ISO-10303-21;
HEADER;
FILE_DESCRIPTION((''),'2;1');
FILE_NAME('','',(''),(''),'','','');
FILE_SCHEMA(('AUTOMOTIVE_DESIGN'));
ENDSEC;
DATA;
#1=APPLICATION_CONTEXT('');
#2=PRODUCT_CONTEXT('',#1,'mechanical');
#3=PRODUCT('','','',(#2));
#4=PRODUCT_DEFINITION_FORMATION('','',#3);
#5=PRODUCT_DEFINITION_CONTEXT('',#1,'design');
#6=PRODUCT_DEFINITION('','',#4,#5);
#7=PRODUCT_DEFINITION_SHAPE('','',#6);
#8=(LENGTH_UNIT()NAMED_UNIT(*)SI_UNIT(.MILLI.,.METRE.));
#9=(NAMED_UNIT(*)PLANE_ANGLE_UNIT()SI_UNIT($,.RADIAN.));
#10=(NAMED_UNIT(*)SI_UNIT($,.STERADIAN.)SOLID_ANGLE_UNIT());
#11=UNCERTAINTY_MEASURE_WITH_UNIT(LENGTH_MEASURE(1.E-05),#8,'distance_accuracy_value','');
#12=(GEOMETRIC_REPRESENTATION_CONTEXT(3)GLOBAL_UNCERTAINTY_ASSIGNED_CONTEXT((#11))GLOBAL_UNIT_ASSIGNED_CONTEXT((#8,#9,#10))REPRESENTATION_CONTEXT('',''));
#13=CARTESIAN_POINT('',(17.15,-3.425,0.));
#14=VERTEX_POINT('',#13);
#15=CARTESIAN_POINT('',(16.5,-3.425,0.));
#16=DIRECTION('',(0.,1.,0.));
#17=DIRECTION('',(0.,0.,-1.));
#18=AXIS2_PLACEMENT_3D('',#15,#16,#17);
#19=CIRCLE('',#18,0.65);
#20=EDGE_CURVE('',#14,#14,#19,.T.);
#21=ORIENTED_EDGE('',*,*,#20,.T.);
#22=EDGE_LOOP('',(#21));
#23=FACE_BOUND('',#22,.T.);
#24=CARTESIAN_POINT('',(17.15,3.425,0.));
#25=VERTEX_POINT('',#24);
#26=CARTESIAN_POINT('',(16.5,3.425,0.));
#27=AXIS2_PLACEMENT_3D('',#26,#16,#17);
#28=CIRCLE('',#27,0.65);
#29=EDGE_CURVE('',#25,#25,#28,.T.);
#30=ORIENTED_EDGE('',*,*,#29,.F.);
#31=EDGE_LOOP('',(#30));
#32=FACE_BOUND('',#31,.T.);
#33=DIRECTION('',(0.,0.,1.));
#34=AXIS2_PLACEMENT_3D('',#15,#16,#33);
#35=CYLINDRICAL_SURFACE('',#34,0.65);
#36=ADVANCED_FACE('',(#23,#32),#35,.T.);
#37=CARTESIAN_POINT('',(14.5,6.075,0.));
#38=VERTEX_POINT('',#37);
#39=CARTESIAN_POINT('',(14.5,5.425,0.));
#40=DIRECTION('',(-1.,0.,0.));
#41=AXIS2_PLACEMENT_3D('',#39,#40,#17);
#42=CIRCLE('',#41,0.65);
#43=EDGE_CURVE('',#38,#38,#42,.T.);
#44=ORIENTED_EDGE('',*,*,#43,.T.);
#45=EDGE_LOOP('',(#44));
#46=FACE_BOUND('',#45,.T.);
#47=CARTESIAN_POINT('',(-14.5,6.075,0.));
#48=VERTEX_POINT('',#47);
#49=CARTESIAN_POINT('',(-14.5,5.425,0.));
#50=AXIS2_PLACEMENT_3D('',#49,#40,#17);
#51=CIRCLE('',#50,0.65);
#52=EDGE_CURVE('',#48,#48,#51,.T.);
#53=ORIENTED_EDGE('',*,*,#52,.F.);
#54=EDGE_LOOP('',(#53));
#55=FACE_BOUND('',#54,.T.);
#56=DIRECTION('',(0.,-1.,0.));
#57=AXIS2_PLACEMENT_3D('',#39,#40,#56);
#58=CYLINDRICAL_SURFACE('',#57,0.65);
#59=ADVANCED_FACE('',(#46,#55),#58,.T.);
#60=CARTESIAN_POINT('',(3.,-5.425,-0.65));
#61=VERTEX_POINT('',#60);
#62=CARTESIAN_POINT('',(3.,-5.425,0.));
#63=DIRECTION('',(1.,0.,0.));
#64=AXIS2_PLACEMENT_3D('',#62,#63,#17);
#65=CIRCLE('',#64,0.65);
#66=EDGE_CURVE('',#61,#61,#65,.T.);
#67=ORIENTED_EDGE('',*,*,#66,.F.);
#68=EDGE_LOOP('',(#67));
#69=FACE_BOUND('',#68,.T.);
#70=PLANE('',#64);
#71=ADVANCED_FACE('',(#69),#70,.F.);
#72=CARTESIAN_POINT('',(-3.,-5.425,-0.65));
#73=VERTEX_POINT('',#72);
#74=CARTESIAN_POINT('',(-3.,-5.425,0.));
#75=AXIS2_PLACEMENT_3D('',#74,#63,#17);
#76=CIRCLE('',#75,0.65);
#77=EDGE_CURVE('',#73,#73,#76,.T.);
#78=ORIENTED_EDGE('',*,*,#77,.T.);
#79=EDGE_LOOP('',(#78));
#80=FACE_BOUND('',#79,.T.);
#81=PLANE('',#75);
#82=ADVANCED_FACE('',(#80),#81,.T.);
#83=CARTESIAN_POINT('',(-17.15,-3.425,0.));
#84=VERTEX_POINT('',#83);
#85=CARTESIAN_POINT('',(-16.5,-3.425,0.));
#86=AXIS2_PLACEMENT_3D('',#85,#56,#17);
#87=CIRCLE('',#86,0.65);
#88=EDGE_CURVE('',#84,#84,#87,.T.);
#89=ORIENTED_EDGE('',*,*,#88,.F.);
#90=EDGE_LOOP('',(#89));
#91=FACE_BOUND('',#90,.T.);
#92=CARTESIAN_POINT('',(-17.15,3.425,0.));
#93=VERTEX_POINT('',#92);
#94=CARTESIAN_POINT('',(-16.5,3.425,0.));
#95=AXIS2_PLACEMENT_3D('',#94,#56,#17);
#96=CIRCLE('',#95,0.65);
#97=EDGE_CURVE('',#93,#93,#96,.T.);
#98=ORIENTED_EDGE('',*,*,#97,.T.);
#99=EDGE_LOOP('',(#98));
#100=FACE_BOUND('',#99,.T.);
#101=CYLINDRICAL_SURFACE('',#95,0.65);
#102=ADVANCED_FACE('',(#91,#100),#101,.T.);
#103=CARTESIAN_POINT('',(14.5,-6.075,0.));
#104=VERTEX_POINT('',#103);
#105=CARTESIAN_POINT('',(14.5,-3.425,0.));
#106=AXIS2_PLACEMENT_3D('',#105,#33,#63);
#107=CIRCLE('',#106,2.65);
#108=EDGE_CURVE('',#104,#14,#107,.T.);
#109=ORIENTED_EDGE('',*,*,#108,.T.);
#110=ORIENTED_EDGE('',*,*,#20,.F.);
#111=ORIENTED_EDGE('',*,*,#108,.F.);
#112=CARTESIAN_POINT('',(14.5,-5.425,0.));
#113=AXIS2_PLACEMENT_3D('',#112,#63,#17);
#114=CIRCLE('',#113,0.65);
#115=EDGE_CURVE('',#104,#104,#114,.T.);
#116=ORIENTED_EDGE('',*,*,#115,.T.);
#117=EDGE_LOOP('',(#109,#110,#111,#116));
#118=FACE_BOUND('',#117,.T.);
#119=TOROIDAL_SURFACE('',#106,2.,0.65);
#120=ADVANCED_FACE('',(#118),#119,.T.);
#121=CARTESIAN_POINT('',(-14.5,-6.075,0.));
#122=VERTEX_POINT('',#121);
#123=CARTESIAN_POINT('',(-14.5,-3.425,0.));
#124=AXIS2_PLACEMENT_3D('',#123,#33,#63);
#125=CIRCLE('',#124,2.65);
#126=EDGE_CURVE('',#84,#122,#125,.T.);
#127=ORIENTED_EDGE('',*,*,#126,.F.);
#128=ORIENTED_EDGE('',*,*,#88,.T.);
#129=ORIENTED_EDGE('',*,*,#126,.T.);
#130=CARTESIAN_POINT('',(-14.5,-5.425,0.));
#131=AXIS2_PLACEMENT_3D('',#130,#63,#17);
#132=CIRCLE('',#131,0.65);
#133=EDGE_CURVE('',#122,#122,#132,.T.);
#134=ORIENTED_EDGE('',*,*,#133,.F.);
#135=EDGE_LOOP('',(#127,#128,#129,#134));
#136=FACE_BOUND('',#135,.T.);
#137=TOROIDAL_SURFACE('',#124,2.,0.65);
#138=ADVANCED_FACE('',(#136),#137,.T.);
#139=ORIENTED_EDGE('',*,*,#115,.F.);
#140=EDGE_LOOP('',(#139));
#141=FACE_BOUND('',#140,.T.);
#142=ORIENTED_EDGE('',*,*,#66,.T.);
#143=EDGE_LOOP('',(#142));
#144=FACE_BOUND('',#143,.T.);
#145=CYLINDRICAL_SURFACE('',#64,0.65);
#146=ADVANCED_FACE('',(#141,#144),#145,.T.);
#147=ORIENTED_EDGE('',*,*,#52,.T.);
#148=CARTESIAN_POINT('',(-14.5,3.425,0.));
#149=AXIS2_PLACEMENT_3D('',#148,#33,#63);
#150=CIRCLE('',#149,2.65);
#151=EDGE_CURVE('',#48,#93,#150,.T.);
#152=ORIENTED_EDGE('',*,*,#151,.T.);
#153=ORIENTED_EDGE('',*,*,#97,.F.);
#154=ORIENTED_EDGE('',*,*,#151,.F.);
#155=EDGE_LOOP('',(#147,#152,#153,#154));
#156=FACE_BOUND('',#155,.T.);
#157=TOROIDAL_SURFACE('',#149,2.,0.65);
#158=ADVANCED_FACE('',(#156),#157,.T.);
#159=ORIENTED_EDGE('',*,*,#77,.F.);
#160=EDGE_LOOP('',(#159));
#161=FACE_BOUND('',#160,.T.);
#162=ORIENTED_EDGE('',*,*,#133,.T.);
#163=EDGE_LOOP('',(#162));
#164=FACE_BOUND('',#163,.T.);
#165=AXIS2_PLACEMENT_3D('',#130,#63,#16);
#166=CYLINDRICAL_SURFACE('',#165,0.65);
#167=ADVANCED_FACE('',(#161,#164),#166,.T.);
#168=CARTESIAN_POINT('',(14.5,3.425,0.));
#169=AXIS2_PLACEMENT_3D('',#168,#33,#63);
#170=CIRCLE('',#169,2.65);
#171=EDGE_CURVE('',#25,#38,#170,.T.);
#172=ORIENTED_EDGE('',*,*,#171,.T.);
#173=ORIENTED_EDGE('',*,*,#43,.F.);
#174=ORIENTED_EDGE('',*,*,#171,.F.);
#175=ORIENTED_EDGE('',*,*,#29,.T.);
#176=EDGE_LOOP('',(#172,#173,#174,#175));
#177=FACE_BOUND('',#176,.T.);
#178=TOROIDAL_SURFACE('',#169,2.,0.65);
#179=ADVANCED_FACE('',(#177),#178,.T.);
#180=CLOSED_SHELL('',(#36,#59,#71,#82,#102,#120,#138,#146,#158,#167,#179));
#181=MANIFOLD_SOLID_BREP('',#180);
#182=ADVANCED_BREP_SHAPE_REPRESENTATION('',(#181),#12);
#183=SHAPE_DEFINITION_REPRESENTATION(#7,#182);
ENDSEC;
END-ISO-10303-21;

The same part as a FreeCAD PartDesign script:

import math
import FreeCAD as App
import Part
import Sketcher
from FreeCAD import Vector
Q = App.Units.Quantity

doc = App.newDocument("Part")
body = doc.addObject("PartDesign::Body", "Body")

# Sketch on YZ plane
sketch1 = body.newObject("Sketcher::SketchObject", "Sketch")
sketch1.AttachmentSupport = (doc.getObject("YZ_Plane"), [""])
sketch1.MapMode = "FlatFace"
sketch1.AttachmentOffset = App.Placement(Vector(0, 0, -3), App.Rotation())
sketch1.addGeometry(Part.Circle(Vector(-5.4, 0, 0), Vector(0, 0, 1), 0.7), False)
sketch1.addConstraint([
    Sketcher.Constraint("PointOnObject", 0, 3, -1),
    Sketcher.Constraint("Diameter", 0, Q("1.3 mm")),
    Sketcher.Constraint("DistanceX", 0, 3, -1, 1, Q("5.425 mm")),
])

# Sketch on XY plane
sketch2 = body.newObject("Sketcher::SketchObject", "Sketch001")
sketch2.AttachmentSupport = (doc.getObject("XY_Plane"), [""])
sketch2.MapMode = "FlatFace"
sketch2.addGeometry([
    Part.LineSegment(Vector(-3, -5.4, 0), Vector(-14.5, -5.4, 0)),  # 0
    Part.ArcOfCircle(Part.Circle(Vector(-14.5, -3.4, 0), Vector(0, 0, 1), 2), math.radians(-180), math.radians(-90)),  # 1
    Part.LineSegment(Vector(-16.5, -3.4, 0), Vector(-16.5, 3.4, 0)),  # 2
    Part.ArcOfCircle(Part.Circle(Vector(-14.5, 3.4, 0), Vector(0, 0, 1), 2), math.radians(90), math.radians(180)),  # 3
    Part.LineSegment(Vector(-14.5, 5.4, 0), Vector(14.5, 5.4, 0)),  # 4
    Part.ArcOfCircle(Part.Circle(Vector(14.5, 3.4, 0), Vector(0, 0, 1), 2), math.radians(0), math.radians(90)),  # 5
    Part.LineSegment(Vector(16.5, 3.4, 0), Vector(16.5, -3.4, 0)),  # 6
    Part.ArcOfCircle(Part.Circle(Vector(14.5, -3.4, 0), Vector(0, 0, 1), 2), math.radians(-90), math.radians(0)),  # 7
    Part.LineSegment(Vector(14.5, -5.4, 0), Vector(3, -5.4, 0)),  # 8
], False)
sketch2.addConstraint([
    Sketcher.Constraint("Tangent", 0, 2, 1, 2),
    Sketcher.Constraint("Tangent", 1, 1, 2, 1),
    Sketcher.Constraint("Tangent", 2, 2, 3, 2),
    Sketcher.Constraint("Tangent", 3, 1, 4, 1),
    Sketcher.Constraint("Tangent", 4, 2, 5, 2),
    Sketcher.Constraint("Tangent", 5, 1, 6, 1),
    Sketcher.Constraint("Tangent", 6, 2, 7, 2),
    Sketcher.Constraint("Tangent", 7, 1, 8, 1),
    Sketcher.Constraint("Horizontal", 0),
    Sketcher.Constraint("Vertical", 2),
    Sketcher.Constraint("Horizontal", 4),
    Sketcher.Constraint("Vertical", 6),
    Sketcher.Constraint("Horizontal", 8),
    Sketcher.Constraint("Equal", 1, 3),
    Sketcher.Constraint("Equal", 3, 5),
    Sketcher.Constraint("Equal", 5, 7),
    Sketcher.Constraint("Symmetric", 1, 3, 5, 3, -1, 1),
    Sketcher.Constraint("Symmetric", 0, 1, 8, 2, -2),
    Sketcher.Constraint("Radius", 1, Q("2 mm")),
    Sketcher.Constraint("DistanceX", 4, 1, 4, 2, Q("29 mm")),
    Sketcher.Constraint("DistanceX", 0, 2, 0, 1, Q("11.5 mm")),
    Sketcher.Constraint("DistanceY", 2, 1, 2, 2, Q("6.85 mm")),
])
doc.recompute()

additivepipe = body.newObject("PartDesign::AdditivePipe", "AdditivePipe")
additivepipe.Profile = sketch1
additivepipe.Spine = (sketch2, ["Edge1", "Edge2", "Edge3", "Edge4", "Edge5", "Edge6", "Edge7", "Edge8", "Edge9"])

doc.recompute()
